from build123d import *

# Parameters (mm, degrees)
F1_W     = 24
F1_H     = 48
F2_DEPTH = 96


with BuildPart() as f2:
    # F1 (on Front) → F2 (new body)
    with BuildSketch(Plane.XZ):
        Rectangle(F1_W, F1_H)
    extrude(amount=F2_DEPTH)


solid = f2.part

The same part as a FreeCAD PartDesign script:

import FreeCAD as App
import Part
import Sketcher

doc = App.newDocument("Part")
body = doc.addObject("PartDesign::Body", "Body")

sketch1 = body.newObject("Sketcher::SketchObject", "Sketch")
sketch1.AttachmentSupport = (doc.getObject("XZ_Plane"), [""])
sketch1.MapMode = "FlatFace"
sketch1.addGeometry([
    Part.LineSegment(App.Vector(-12, 24, 0), App.Vector(-12, -24, 0)),
    Part.LineSegment(App.Vector(-12, -24, 0), App.Vector(12, -24, 0)),
    Part.LineSegment(App.Vector(12, -24, 0), App.Vector(12, 24, 0)),
    Part.LineSegment(App.Vector(12, 24, 0), App.Vector(-12, 24, 0)),
], False)
sketch1.addConstraint([
    Sketcher.Constraint("Coincident", 0, 2, 1, 1),
    Sketcher.Constraint("Coincident", 1, 2, 2, 1),
    Sketcher.Constraint("Coincident", 2, 2, 3, 1),
    Sketcher.Constraint("Coincident", 3, 2, 0, 1),
    Sketcher.Constraint("Vertical", 0),
    Sketcher.Constraint("Horizontal", 1),
    Sketcher.Constraint("Vertical", 2),
    Sketcher.Constraint("Horizontal", 3),
    Sketcher.Constraint("Symmetric", 0, 2, 2, 2, -1, 1),
    Sketcher.Constraint("DistanceX", 1, 1, 1, 2, 24.0),
    Sketcher.Constraint("DistanceY", 0, 2, 0, 1, 48.0),
])
pad1 = body.newObject("PartDesign::Pad", "Pad")
pad1.Profile = sketch1
pad1.Length = 96

doc.recompute()
